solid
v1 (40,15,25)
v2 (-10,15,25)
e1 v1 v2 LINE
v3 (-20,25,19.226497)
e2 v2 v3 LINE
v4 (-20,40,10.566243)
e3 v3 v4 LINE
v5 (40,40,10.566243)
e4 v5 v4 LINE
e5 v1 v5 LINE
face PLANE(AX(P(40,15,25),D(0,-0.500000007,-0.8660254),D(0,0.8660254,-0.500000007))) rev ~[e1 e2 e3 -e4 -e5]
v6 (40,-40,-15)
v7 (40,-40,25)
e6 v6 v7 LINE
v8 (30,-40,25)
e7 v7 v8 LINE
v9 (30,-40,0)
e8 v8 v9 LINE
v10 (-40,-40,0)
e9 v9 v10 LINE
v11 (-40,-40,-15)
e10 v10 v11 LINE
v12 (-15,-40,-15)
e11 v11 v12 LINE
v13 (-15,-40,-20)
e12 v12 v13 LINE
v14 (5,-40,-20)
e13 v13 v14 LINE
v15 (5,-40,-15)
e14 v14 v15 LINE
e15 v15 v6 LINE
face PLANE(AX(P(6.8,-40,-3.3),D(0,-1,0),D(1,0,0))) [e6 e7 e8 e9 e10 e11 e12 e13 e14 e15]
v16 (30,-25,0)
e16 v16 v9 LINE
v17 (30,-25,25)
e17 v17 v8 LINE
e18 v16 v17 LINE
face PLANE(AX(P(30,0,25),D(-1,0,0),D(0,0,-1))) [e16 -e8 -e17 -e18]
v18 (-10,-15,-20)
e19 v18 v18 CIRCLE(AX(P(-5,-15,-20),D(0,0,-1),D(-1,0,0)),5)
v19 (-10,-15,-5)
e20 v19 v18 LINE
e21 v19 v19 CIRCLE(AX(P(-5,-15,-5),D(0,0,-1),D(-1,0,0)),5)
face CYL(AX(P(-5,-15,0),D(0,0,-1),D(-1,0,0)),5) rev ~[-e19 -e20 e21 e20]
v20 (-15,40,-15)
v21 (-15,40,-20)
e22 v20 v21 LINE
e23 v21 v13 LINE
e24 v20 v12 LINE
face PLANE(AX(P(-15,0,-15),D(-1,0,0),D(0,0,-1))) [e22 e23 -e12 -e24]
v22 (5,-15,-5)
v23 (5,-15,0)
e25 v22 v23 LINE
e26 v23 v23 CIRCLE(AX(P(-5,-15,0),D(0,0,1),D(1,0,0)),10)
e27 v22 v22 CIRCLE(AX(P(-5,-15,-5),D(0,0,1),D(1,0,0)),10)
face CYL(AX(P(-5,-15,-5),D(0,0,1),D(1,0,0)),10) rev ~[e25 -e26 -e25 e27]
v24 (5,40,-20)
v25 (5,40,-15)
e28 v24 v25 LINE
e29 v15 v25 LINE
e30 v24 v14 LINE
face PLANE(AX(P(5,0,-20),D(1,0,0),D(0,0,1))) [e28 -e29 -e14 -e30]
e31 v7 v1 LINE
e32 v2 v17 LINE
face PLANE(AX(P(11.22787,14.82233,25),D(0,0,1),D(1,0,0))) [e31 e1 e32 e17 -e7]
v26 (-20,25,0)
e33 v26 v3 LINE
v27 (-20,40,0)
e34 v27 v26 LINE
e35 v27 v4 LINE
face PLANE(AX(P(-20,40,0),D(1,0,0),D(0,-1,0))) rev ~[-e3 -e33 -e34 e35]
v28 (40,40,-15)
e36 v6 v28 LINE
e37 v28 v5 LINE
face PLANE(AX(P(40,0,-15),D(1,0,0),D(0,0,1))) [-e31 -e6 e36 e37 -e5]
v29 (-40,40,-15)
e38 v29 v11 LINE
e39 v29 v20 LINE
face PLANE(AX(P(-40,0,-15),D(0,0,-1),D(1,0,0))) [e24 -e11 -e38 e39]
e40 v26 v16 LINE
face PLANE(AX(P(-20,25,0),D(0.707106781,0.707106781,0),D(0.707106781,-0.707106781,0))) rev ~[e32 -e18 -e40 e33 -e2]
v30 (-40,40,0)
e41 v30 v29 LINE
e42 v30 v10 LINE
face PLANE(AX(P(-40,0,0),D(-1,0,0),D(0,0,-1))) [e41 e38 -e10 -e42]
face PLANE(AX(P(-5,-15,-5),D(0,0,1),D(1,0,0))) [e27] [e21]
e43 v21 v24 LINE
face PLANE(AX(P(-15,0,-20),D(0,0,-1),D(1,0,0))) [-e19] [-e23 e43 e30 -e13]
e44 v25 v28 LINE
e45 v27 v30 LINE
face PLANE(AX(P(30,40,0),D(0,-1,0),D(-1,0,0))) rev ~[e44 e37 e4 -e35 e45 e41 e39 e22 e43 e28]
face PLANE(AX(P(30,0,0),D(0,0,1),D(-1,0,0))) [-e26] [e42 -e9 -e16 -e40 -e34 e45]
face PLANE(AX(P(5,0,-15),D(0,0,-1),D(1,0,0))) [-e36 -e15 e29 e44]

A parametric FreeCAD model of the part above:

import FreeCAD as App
import Part
import Sketcher
from FreeCAD import Vector
Q = App.Units.Quantity


def add_polygon(sketch, points):
    """Adds a closed chain of lines whose ends are joined by coincident constraints."""
    first, n = sketch.GeometryCount, len(points)
    for a, b in zip(points, points[1:] + points[:1]):
        sketch.addGeometry(Part.LineSegment(App.Vector(*a, 0), App.Vector(*b, 0)), False)
    for i in range(n):
        sketch.addConstraint(Sketcher.Constraint("Coincident", first + i, 2, first + (i + 1) % n, 1))

doc = App.newDocument("Part")
body = doc.addObject("PartDesign::Body", "Body")

# Sketch on XZ plane
sketch1 = doc.addObject("Sketcher::SketchObject", "Sketch")
body.addObject(sketch1)
sketch1.AttachmentSupport = (doc.XZ_Plane, [""])
sketch1.MapMode = "FlatFace"
add_polygon(sketch1, [(40, 25), (30, 25), (30, 0), (-40, 0), (-40, -15), (-15, -15), (-15, -20), (5, -20), (5, -15), (40, -15)])  # lines 0-9
sketch1.addConstraint([
    Sketcher.Constraint("Horizontal", 0),
    Sketcher.Constraint("Vertical", 1),
    Sketcher.Constraint("Horizontal", 2),
    Sketcher.Constraint("Vertical", 3),
    Sketcher.Constraint("Horizontal", 4),
    Sketcher.Constraint("Vertical", 5),
    Sketcher.Constraint("Horizontal", 6),
    Sketcher.Constraint("Vertical", 7),
    Sketcher.Constraint("Horizontal", 8),
    Sketcher.Constraint("Vertical", 9),
    Sketcher.Constraint("Symmetric", 3, 2, 8, 2, -2),
    Sketcher.Constraint("PointOnObject", 1, 2, -1),
    Sketcher.Constraint("Equal", 4, 1),
    Sketcher.Constraint("DistanceX", 0, 2, 0, 1, 10.0),
    Sketcher.Constraint("DistanceX", 2, 2, 2, 1, 70.0),
    Sketcher.Constraint("DistanceX", 4, 1, 4, 2, 25.0),
    Sketcher.Constraint("DistanceX", 6, 1, 6, 2, 20.0),
    Sketcher.Constraint("DistanceY", 3, 2, 3, 1, 15.0),
    Sketcher.Constraint("DistanceY", 5, 2, 5, 1, 5.0),
])
pad1 = doc.addObject("PartDesign::Pad", "Pad")
body.addObject(pad1)
pad1.Profile = sketch1
pad1.Length = 80
pad1.Midplane = True

# Sketch on XY plane
sketch2 = doc.addObject("Sketcher::SketchObject", "Sketch001")
body.addObject(sketch2)
sketch2.AttachmentSupport = (doc.XY_Plane, [""])
sketch2.MapMode = "FlatFace"
add_polygon(sketch2, [(30, -25), (30, 40), (-20, 40), (-20, 25)])  # lines 0-3
sketch2.addConstraint([
    Sketcher.Constraint("Vertical", 0),
    Sketcher.Constraint("Horizontal", 1),
    Sketcher.Constraint("Vertical", 2),
    Sketcher.Constraint("DistanceX", 1, 2, 1, 1, 50.0),
    Sketcher.Constraint("DistanceY", 0, 1, 0, 2, 65.0),
    Sketcher.Constraint("DistanceY", 2, 2, 2, 1, 15.0),
    Sketcher.Constraint("DistanceX", -1, 1, 0, 2, 30.0),
    Sketcher.Constraint("DistanceY", -1, 1, 0, 2, 40.0),
])
pad2 = doc.addObject("PartDesign::Pad", "Pad001")
body.addObject(pad2)
pad2.Profile = sketch2
pad2.Length = 25

# Sketch on YZ plane
sketch3 = doc.addObject("Sketcher::SketchObject", "Sketch002")
body.addObject(sketch3)
sketch3.AttachmentSupport = (doc.YZ_Plane, [""])
sketch3.MapMode = "FlatFace"
sketch3.AttachmentOffset = App.Placement(Vector(0, 0, 40), App.Rotation())
add_polygon(sketch3, [(40, 25), (15, 25), (40, 11)])  # lines 0-2
sketch3.addConstraint([
    Sketcher.Constraint("Horizontal", 0),
    Sketcher.Constraint("Vertical", 2),
    Sketcher.Constraint("DistanceX", 0, 2, 0, 1, 25.0),
    Sketcher.Constraint("Angle", 1, Q("-30 deg")),
    Sketcher.Constraint("DistanceX", -1, 1, 0, 2, 15.0),
    Sketcher.Constraint("DistanceY", -1, 1, 0, 2, 25.0),
])
pocket1 = doc.addObject("PartDesign::Pocket", "Pocket")
body.addObject(pocket1)
pocket1.Profile = sketch3
pocket1.Type = "ThroughAll"

# Sketch on XY plane
sketch4 = doc.addObject("Sketcher::SketchObject", "Sketch003")
body.addObject(sketch4)
sketch4.AttachmentSupport = (doc.XY_Plane, [""])
sketch4.MapMode = "FlatFace"
sketch4.addGeometry(Part.Circle(Vector(-5, -15, 0), Vector(0, 0, 1), 5), False)
sketch4.addConstraint([
    Sketcher.Constraint("Diameter", 0, 10.0),
    Sketcher.Constraint("DistanceX", 0, 3, -1, 1, 5.0),
    Sketcher.Constraint("DistanceY", 0, 3, -1, 1, 15.0),
])
doc.recompute()
hole = doc.addObject("PartDesign::Hole", "Hole")
body.addObject(hole)
hole.Profile = sketch4
hole.ThreadType = "None"
hole.Diameter = 10
hole.DepthType = "ThroughAll"
hole.HoleCutType = "Counterbore"
hole.HoleCutDiameter = 20
hole.HoleCutDepth = 5

doc.recompute()
